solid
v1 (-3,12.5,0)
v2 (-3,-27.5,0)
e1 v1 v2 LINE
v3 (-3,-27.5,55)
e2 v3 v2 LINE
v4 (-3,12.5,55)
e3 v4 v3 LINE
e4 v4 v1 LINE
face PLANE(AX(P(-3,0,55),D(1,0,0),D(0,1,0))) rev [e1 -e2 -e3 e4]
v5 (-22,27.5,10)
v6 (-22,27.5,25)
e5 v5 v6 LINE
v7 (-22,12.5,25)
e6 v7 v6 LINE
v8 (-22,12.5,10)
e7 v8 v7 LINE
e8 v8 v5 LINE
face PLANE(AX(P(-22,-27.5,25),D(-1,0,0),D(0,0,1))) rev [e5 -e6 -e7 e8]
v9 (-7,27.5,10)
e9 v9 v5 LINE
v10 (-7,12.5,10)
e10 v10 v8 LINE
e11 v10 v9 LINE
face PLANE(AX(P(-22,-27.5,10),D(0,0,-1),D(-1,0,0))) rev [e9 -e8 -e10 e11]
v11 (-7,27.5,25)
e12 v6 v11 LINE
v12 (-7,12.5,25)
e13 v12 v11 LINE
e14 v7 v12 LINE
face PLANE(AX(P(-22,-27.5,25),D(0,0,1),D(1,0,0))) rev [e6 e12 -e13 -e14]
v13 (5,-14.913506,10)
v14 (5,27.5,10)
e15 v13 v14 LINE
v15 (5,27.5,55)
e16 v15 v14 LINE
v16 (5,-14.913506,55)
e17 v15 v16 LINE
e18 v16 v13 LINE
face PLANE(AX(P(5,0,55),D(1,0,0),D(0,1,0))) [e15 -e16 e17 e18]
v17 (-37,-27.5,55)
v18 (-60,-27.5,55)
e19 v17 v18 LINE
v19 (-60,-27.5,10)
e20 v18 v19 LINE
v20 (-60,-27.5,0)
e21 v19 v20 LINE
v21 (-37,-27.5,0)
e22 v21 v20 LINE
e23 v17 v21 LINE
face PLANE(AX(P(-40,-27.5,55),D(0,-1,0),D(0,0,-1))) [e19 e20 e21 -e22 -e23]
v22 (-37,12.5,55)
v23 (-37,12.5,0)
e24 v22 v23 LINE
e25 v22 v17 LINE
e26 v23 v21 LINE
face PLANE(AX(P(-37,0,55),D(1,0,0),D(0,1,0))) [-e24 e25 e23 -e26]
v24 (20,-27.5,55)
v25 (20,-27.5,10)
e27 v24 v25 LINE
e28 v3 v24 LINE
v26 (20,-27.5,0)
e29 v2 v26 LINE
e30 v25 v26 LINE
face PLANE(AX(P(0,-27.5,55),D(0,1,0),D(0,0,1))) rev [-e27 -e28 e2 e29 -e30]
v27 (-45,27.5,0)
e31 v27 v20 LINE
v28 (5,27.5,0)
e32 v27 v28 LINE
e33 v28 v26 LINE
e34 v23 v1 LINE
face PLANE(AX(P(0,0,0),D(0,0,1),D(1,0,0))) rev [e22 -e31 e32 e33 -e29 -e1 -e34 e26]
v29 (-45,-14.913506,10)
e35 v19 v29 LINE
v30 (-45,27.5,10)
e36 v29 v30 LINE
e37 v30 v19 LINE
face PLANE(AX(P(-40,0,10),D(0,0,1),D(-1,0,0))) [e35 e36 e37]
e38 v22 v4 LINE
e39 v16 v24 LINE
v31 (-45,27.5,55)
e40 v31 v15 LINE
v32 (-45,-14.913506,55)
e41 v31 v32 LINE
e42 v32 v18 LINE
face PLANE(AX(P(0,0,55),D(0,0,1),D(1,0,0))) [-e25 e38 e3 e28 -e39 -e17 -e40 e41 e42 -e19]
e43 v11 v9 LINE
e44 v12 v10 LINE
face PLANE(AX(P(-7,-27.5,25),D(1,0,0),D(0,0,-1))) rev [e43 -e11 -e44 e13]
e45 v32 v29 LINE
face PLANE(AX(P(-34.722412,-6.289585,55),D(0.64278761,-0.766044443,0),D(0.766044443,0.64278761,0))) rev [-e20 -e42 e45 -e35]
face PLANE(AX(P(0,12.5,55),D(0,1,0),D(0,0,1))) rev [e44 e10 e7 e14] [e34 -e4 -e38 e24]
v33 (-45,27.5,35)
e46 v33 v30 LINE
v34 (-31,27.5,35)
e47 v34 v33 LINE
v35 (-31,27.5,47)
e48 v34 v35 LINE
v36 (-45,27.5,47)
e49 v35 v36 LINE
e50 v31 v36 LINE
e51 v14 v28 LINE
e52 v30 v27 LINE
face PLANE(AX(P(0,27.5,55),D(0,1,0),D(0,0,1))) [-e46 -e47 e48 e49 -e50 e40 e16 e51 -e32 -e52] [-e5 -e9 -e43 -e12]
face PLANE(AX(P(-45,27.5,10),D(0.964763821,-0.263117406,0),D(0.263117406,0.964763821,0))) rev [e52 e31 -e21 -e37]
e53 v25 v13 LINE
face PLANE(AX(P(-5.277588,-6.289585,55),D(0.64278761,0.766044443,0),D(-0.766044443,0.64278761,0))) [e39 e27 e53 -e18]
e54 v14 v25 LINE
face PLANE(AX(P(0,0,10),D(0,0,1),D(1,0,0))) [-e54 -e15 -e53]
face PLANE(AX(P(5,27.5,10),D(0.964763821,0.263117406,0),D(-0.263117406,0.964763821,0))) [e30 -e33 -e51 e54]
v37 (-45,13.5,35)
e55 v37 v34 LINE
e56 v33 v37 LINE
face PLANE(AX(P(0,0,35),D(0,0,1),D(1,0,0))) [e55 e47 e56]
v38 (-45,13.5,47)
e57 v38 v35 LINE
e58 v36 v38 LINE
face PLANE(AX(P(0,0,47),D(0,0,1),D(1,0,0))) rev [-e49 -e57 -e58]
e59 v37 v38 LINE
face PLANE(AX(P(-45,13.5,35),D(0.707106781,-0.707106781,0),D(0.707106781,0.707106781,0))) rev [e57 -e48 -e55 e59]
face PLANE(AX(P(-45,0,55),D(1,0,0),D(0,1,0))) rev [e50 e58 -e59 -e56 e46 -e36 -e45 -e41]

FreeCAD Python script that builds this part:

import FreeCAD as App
import Part
import Sketcher
from FreeCAD import Vector
Q = App.Units.Quantity

doc = App.newDocument("Part")
params = doc.addObject("Spreadsheet::Sheet", "Params")
for row, (alias, value) in enumerate([
    ("sketch1_width", "17 mm"),
    ("sketch1_width2", "23 mm"),
    ("sketch1_width3", "25 mm"),
    ("sketch1_height", "15 mm"),
    ("sketch1_height2", "40 mm"),
    ("pad1_length", "55 mm"),
    ("pad2_length", "10 mm"),
    ("sketch3_width", "15 mm"),
    ("sketch4_width", "14 mm"),
    ("pocket2_length", "12 mm"),
], start=1):
    params.set(f"A{row}", alias)
    params.set(f"B{row}", "=" + value)
    params.setAlias(f"B{row}", alias)

body = doc.addObject("PartDesign::Body", "Body")

# Sketch on XY plane
sketch1 = doc.addObject("Sketcher::SketchObject", "Sketch")
body.addObject(sketch1)
sketch1.AttachmentSupport = (doc.XY_Plane, [""])
sketch1.MapMode = "FlatFace"
sketch1.addGeometry([
    Part.LineSegment(Vector(-20, 28, 0), Vector(-20, 12, 0)),  # 0
    Part.LineSegment(Vector(-20, 12, 0), Vector(-3, 12, 0)),  # 1
    Part.LineSegment(Vector(-3, 12, 0), Vector(-3, -28, 0)),  # 2
    Part.LineSegment(Vector(-3, -28, 0), Vector(20, -28, 0)),  # 3
    Part.LineSegment(Vector(20, -28, 0), Vector(5, -15, 0)),  # 4
    Part.LineSegment(Vector(5, -15, 0), Vector(5, 28, 0)),  # 5
    Part.LineSegment(Vector(5, 28, 0), Vector(-20, 28, 0)),  # 6
], False)
sketch1.addConstraint([
    Sketcher.Constraint("Coincident", 0, 2, 1, 1),
    Sketcher.Constraint("Coincident", 1, 2, 2, 1),
    Sketcher.Constraint("Coincident", 2, 2, 3, 1),
    Sketcher.Constraint("Coincident", 3, 2, 4, 1),
    Sketcher.Constraint("Coincident", 4, 2, 5, 1),
    Sketcher.Constraint("Coincident", 5, 2, 6, 1),
    Sketcher.Constraint("Coincident", 6, 2, 0, 1),
    Sketcher.Constraint("Vertical", 0),
    Sketcher.Constraint("Horizontal", 1),
    Sketcher.Constraint("Vertical", 2),
    Sketcher.Constraint("Horizontal", 3),
    Sketcher.Constraint("Vertical", 5),
    Sketcher.Constraint("Horizontal", 6),
    Sketcher.Constraint("Symmetric", 3, 2, 6, 2, -1, 1),
    Sketcher.Constraint("DistanceX", 1, 1, 1, 2, Q("17 mm")),
    Sketcher.Constraint("DistanceX", 3, 1, 3, 2, Q("23 mm")),
    Sketcher.Constraint("DistanceX", 6, 2, 6, 1, Q("25 mm")),
    Sketcher.Constraint("DistanceY", 0, 2, 0, 1, Q("15 mm")),
    Sketcher.Constraint("DistanceY", 2, 2, 2, 1, Q("40 mm")),
    Sketcher.Constraint("Angle", 4, Q("140 deg")),
])
sketch1.setExpression("Constraints[14]", "Params.sketch1_width")
sketch1.setExpression("Constraints[15]", "Params.sketch1_width2")
sketch1.setExpression("Constraints[16]", "Params.sketch1_width3")
sketch1.setExpression("Constraints[17]", "Params.sketch1_height")
sketch1.setExpression("Constraints[18]", "Params.sketch1_height2")
pad1 = doc.addObject("PartDesign::Pad", "Pad")
body.addObject(pad1)
pad1.Profile = sketch1
pad1.setExpression("Length", "Params.pad1_length")

# Sketch on XY plane
sketch2 = doc.addObject("Sketcher::SketchObject", "Sketch001")
body.addObject(sketch2)
sketch2.AttachmentSupport = (doc.XY_Plane, [""])
sketch2.MapMode = "FlatFace"
sketch2.addGeometry([
    Part.LineSegment(Vector(5, 28, 0), Vector(20, -28, 0)),
    Part.LineSegment(Vector(20, -28, 0), Vector(5, -15, 0)),
    Part.LineSegment(Vector(5, -15, 0), Vector(5, 28, 0)),
], False)
sketch2.addConstraint([
    Sketcher.Constraint("Coincident", 0, 2, 1, 1),
    Sketcher.Constraint("Coincident", 1, 2, 2, 1),
    Sketcher.Constraint("Coincident", 2, 2, 0, 1),
    Sketcher.Constraint("Vertical", 2),
    Sketcher.Constraint("Angle", 1, Q("140 deg")),
    Sketcher.Constraint("DistanceX", -1, 1, 0, 2, Q("20 mm")),
    Sketcher.Constraint("DistanceX", -1, 1, 1, 2, Q("5 mm")),
    Sketcher.Constraint("DistanceY", 0, 2, 2, 2, Q("55 mm")),
    Sketcher.Constraint("DistanceY", 0, 2, -1, 1, Q("27.5 mm")),
])
pad2 = doc.addObject("PartDesign::Pad", "Pad001")
body.addObject(pad2)
pad2.Profile = sketch2
pad2.setExpression("Length", "Params.pad2_length")
doc.recompute()

datumplane = doc.addObject("PartDesign::Plane", "DatumPlane")
body.addObject(datumplane)
datumplane.AttachmentSupport = (doc.YZ_Plane, [""])
datumplane.MapMode = "FlatFace"
datumplane.AttachmentOffset = App.Placement(Vector(0, 0, -20), App.Rotation())
mirrored = doc.addObject("PartDesign::Mirrored", "Mirrored")
body.addObject(mirrored)
mirrored.Originals = [pad1, pad2]
mirrored.MirrorPlane = (datumplane, [""])
body.Tip = mirrored

# Sketch on XZ plane
sketch3 = doc.addObject("Sketcher::SketchObject", "Sketch002")
body.addObject(sketch3)
sketch3.AttachmentSupport = (doc.XZ_Plane, [""])
sketch3.MapMode = "FlatFace"
sketch3.AttachmentOffset = App.Placement(Vector(0, 0, -27.5), App.Rotation())
sketch3.addGeometry([
    Part.LineSegment(Vector(-22, 10, 0), Vector(-22, 25, 0)),
    Part.LineSegment(Vector(-22, 25, 0), Vector(-7, 25, 0)),
    Part.LineSegment(Vector(-7, 25, 0), Vector(-7, 10, 0)),
    Part.LineSegment(Vector(-7, 10, 0), Vector(-22, 10, 0)),
], False)
sketch3.addConstraint([
    Sketcher.Constraint("Coincident", 0, 2, 1, 1),
    Sketcher.Constraint("Coincident", 1, 2, 2, 1),
    Sketcher.Constraint("Coincident", 2, 2, 3, 1),
    Sketcher.Constraint("Coincident", 3, 2, 0, 1),
    Sketcher.Constraint("Vertical", 0),
    Sketcher.Constraint("Horizontal", 1),
    Sketcher.Constraint("Vertical", 2),
    Sketcher.Constraint("Horizontal", 3),
    Sketcher.Constraint("Equal", 3, 0),
    Sketcher.Constraint("DistanceX", 1, 1, 1, 2, Q("15 mm")),
    Sketcher.Constraint("DistanceX", 0, 2, -1, 1, Q("22 mm")),
    Sketcher.Constraint("DistanceY", -1, 1, 0, 2, Q("25 mm")),
])
sketch3.setExpression("Constraints[9]", "Params.sketch3_width")
pocket1 = doc.addObject("PartDesign::Pocket", "Pocket")
body.addObject(pocket1)
pocket1.Profile = sketch3
pocket1.Type = "ThroughAll"
pocket1.Reversed = True

# Sketch on XY plane
sketch4 = doc.addObject("Sketcher::SketchObject", "Sketch003")
body.addObject(sketch4)
sketch4.AttachmentSupport = (doc.XY_Plane, [""])
sketch4.MapMode = "FlatFace"
sketch4.AttachmentOffset = App.Placement(Vector(0, 0, 47), App.Rotation())
sketch4.addGeometry([
    Part.LineSegment(Vector(-45, 28, 0), Vector(-45, 14, 0)),
    Part.LineSegment(Vector(-45, 14, 0), Vector(-31, 28, 0)),
    Part.LineSegment(Vector(-31, 28, 0), Vector(-45, 28, 0)),
], False)
sketch4.addConstraint([
    Sketcher.Constraint("Coincident", 0, 2, 1, 1),
    Sketcher.Constraint("Coincident", 1, 2, 2, 1),
    Sketcher.Constraint("Coincident", 2, 2, 0, 1),
    Sketcher.Constraint("Vertical", 0),
    Sketcher.Constraint("Horizontal", 2),
    Sketcher.Constraint("Equal", 2, 0),
    Sketcher.Constraint("DistanceX", 2, 2, 2, 1, Q("14 mm")),
    Sketcher.Constraint("DistanceX", 0, 2, -1, 1, Q("45 mm")),
    Sketcher.Constraint("DistanceY", -1, 1, 0, 2, Q("13.5 mm")),
])
sketch4.setExpression("Constraints[6]", "Params.sketch4_width")
pocket2 = doc.addObject("PartDesign::Pocket", "Pocket001")
body.addObject(pocket2)
pocket2.Profile = sketch4
pocket2.setExpression("Length", "Params.pocket2_length")

doc.recompute()
